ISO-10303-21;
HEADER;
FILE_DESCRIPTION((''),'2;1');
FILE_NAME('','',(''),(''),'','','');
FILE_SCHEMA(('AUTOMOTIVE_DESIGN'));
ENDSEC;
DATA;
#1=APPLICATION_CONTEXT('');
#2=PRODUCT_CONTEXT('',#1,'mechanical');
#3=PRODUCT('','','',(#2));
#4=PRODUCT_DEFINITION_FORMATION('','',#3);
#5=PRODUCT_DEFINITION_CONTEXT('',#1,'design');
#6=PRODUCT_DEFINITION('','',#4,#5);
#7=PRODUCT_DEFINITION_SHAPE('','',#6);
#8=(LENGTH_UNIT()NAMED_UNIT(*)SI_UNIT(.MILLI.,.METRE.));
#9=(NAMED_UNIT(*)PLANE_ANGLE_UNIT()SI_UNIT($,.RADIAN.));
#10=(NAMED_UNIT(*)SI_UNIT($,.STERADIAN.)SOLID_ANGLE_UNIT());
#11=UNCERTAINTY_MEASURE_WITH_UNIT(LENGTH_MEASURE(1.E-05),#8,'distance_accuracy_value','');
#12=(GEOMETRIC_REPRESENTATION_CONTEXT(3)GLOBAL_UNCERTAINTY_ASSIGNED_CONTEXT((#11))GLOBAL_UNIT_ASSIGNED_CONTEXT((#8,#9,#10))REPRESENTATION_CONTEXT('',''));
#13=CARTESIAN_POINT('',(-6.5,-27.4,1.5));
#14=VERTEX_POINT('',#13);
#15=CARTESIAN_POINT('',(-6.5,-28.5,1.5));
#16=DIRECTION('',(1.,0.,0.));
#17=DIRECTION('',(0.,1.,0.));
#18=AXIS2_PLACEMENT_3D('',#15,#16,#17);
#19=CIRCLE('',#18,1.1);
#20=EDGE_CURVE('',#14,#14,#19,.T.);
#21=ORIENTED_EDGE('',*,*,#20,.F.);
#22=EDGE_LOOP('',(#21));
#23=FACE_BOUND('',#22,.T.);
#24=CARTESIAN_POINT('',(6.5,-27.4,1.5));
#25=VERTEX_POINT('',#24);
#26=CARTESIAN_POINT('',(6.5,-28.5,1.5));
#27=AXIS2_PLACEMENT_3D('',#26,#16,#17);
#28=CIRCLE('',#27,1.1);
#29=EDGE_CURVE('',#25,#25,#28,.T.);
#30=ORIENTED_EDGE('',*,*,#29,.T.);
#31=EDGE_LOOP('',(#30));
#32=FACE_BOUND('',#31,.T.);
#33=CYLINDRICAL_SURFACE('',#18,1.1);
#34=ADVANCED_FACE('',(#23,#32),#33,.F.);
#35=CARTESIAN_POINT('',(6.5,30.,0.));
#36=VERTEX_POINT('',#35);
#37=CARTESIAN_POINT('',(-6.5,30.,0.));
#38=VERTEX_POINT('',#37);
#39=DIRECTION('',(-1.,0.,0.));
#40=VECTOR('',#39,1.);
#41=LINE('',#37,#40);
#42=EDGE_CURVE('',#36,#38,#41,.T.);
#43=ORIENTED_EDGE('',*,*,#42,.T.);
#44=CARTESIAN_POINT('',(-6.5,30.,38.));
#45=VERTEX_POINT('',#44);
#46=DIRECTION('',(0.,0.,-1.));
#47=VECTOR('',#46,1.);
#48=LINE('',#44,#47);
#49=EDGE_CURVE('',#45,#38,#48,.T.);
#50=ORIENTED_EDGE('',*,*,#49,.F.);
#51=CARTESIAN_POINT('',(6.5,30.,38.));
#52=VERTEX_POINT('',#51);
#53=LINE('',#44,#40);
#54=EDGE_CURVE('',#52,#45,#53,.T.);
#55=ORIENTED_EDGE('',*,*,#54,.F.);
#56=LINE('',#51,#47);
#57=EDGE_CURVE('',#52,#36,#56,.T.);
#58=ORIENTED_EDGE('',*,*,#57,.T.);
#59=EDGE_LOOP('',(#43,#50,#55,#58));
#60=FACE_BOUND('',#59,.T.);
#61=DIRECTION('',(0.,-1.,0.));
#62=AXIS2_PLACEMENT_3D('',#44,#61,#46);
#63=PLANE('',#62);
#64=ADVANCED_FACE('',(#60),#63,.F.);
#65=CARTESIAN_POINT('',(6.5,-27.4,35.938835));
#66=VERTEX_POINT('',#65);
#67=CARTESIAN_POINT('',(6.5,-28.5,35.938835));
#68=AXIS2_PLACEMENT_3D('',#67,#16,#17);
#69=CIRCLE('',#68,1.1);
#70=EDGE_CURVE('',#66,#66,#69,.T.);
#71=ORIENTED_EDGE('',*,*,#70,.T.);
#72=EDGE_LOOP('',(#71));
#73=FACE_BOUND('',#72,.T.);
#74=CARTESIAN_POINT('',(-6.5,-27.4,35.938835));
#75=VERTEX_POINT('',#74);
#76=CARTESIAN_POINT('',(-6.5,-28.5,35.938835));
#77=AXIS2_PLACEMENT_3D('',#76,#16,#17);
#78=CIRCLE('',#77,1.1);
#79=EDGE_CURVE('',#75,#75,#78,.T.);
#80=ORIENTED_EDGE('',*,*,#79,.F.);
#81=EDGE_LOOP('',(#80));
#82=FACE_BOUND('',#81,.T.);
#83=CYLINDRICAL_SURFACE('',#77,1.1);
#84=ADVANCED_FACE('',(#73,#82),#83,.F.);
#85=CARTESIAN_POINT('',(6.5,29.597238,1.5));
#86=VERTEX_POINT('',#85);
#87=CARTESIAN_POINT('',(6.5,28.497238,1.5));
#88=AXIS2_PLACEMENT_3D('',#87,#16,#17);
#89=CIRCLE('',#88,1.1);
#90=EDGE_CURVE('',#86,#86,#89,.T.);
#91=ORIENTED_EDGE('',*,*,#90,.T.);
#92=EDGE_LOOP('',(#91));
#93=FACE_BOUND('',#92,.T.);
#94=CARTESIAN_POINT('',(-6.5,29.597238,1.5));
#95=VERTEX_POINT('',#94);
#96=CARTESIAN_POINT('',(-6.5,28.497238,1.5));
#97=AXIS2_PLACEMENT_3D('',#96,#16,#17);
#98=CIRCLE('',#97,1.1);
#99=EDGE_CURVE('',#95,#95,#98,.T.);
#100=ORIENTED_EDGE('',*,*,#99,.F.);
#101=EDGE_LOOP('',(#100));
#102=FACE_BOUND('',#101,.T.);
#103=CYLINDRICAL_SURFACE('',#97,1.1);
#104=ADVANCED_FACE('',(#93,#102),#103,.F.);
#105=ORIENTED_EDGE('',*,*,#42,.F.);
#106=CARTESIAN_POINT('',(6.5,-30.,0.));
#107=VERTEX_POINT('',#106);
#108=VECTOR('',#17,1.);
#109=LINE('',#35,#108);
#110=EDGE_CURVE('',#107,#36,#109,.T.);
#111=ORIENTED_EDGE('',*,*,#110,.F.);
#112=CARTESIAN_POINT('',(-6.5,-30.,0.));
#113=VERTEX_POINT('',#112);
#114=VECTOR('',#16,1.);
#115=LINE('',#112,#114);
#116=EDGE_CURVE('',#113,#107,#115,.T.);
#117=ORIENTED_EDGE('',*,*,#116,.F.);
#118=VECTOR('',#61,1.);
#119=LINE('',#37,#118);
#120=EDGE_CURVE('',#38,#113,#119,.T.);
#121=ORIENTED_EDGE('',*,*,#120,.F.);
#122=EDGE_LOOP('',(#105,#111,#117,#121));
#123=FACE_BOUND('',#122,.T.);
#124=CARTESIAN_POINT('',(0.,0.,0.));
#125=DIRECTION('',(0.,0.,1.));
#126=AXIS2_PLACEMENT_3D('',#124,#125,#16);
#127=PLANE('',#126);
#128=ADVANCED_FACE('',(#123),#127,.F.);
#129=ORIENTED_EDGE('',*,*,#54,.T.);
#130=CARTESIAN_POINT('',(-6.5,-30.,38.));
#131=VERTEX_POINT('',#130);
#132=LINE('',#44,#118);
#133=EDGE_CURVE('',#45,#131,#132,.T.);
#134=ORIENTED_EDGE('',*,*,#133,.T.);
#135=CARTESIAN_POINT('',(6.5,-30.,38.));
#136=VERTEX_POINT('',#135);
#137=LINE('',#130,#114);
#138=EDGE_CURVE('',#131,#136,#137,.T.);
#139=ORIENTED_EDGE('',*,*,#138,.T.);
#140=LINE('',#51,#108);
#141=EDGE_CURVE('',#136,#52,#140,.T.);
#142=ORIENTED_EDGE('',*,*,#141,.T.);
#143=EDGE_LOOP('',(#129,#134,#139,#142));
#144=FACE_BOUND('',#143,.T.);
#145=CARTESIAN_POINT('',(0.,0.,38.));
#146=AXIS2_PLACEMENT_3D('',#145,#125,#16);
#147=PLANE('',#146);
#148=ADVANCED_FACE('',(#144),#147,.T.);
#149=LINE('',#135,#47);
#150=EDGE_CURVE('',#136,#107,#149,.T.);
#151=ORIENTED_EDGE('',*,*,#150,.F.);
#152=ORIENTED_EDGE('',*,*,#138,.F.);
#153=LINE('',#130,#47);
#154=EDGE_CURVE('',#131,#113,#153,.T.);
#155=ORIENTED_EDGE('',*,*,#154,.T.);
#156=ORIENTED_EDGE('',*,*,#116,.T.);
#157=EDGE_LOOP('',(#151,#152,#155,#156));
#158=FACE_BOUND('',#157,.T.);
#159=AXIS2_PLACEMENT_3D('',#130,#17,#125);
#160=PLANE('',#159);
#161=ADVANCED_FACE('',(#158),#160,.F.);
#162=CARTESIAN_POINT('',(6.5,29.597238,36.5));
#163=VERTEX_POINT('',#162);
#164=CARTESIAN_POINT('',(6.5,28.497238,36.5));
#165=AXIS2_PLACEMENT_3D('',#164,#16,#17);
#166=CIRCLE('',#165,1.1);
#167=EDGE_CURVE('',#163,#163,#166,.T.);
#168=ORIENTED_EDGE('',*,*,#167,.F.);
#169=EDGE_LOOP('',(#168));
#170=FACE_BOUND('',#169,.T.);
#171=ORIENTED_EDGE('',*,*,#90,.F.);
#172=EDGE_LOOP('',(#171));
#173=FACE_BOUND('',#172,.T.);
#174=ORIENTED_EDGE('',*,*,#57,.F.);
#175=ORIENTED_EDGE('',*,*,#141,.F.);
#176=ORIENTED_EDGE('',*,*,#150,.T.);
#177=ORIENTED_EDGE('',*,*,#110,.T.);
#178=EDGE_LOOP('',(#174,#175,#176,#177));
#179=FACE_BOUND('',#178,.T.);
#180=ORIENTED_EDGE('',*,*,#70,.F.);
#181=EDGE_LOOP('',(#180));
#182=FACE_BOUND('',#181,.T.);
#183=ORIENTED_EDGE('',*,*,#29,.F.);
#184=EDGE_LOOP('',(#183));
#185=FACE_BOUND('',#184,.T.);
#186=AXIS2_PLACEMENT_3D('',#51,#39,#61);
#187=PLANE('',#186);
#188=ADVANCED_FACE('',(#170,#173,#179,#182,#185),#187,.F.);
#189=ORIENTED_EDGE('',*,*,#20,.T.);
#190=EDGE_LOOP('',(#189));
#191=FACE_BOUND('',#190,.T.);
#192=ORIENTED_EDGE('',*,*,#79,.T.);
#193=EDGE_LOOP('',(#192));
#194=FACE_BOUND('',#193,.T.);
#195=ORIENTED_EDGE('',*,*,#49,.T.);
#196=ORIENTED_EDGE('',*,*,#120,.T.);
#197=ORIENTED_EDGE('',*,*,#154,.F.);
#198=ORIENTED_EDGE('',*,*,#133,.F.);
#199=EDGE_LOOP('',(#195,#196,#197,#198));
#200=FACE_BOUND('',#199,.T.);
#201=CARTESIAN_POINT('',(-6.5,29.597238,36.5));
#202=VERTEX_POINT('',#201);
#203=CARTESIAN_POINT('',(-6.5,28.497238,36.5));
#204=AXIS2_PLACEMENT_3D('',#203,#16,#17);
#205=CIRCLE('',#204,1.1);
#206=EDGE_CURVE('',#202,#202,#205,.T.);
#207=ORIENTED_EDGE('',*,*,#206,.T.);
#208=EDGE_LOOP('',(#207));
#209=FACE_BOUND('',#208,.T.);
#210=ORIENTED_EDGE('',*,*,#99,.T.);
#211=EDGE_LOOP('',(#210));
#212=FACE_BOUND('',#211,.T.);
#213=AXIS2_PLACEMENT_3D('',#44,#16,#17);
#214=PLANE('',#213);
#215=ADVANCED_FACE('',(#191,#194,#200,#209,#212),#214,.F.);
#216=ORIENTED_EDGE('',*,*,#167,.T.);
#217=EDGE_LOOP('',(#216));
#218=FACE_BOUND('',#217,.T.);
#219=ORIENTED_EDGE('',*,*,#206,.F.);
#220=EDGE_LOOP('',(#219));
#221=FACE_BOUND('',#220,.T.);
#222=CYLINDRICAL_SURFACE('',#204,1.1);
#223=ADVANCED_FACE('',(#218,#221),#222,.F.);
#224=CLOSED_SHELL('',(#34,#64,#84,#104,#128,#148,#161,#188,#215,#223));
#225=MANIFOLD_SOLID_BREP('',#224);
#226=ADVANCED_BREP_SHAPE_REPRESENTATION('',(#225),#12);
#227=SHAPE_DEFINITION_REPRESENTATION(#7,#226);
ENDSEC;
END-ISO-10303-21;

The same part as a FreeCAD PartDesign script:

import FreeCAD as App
import Part
import Sketcher

doc = App.newDocument("Part")
body = doc.addObject("PartDesign::Body", "Body")

# Sketch on XY plane
sketch1 = body.newObject("Sketcher::SketchObject", "Sketch")
sketch1.AttachmentSupport = (doc.getObject("XY_Plane"), [""])
sketch1.MapMode = "FlatFace"
sketch1.addGeometry([
    Part.LineSegment(App.Vector(-6.5, 30, 0), App.Vector(-6.5, -30, 0)),
    Part.LineSegment(App.Vector(-6.5, -30, 0), App.Vector(6.5, -30, 0)),
    Part.LineSegment(App.Vector(6.5, -30, 0), App.Vector(6.5, 30, 0)),
    Part.LineSegment(App.Vector(6.5, 30, 0), App.Vector(-6.5, 30, 0)),
], False)
sketch1.addConstraint([
    Sketcher.Constraint("Coincident", 0, 2, 1, 1),
    Sketcher.Constraint("Coincident", 1, 2, 2, 1),
    Sketcher.Constraint("Coincident", 2, 2, 3, 1),
    Sketcher.Constraint("Coincident", 3, 2, 0, 1),
    Sketcher.Constraint("Vertical", 0),
    Sketcher.Constraint("Horizontal", 1),
    Sketcher.Constraint("Vertical", 2),
    Sketcher.Constraint("Horizontal", 3),
    Sketcher.Constraint("Symmetric", 0, 2, 2, 2, -1, 1),
    Sketcher.Constraint("DistanceX", 1, 1, 1, 2, 13.0),
    Sketcher.Constraint("DistanceY", 0, 2, 0, 1, 60.0),
])
pad1 = body.newObject("PartDesign::Pad", "Pad")
pad1.Profile = sketch1
pad1.Length = 38

# Sketch on YZ plane
sketch2 = body.newObject("Sketcher::SketchObject", "Sketch001")
sketch2.AttachmentSupport = (doc.getObject("YZ_Plane"), [""])
sketch2.MapMode = "FlatFace"
sketch2.AttachmentOffset = App.Placement(App.Vector(0, 0, 6.5), App.Rotation())
sketch2.addGeometry([
    Part.Circle(App.Vector(28.497238, 1.5, 0), App.Vector(0, 0, 1), 1.1),
    Part.Circle(App.Vector(28.497238, 36.5, 0), App.Vector(0, 0, 1), 1.1),
    Part.Circle(App.Vector(-28.5, 35.938835, 0), App.Vector(0, 0, 1), 1.1),
    Part.Circle(App.Vector(-28.5, 1.5, 0), App.Vector(0, 0, 1), 1.1),
], False)
sketch2.addConstraint([
    Sketcher.Constraint("Equal", 0, 1),
    Sketcher.Constraint("Equal", 1, 2),
    Sketcher.Constraint("Equal", 2, 3),
    Sketcher.Constraint("Horizontal", 0, 3, 3, 3),
    Sketcher.Constraint("Vertical", 0, 3, 1, 3),
    Sketcher.Constraint("Vertical", 2, 3, 3, 3),
    Sketcher.Constraint("Diameter", 0, 2.2),
    Sketcher.Constraint("DistanceY", 0, 3, 1, 3, 35.0),
    Sketcher.Constraint("DistanceY", -1, 1, 0, 3, 1.5),
    Sketcher.Constraint("DistanceX", 2, 3, -1, 1, 28.5),
    Sketcher.Constraint("DistanceX", -1, 1, 0, 3, 28.497238),
    Sketcher.Constraint("DistanceY", -1, 1, 2, 3, 35.938835),
])
pocket1 = body.newObject("PartDesign::Pocket", "Pocket")
pocket1.Profile = sketch2
pocket1.Type = "ThroughAll"

doc.recompute()
